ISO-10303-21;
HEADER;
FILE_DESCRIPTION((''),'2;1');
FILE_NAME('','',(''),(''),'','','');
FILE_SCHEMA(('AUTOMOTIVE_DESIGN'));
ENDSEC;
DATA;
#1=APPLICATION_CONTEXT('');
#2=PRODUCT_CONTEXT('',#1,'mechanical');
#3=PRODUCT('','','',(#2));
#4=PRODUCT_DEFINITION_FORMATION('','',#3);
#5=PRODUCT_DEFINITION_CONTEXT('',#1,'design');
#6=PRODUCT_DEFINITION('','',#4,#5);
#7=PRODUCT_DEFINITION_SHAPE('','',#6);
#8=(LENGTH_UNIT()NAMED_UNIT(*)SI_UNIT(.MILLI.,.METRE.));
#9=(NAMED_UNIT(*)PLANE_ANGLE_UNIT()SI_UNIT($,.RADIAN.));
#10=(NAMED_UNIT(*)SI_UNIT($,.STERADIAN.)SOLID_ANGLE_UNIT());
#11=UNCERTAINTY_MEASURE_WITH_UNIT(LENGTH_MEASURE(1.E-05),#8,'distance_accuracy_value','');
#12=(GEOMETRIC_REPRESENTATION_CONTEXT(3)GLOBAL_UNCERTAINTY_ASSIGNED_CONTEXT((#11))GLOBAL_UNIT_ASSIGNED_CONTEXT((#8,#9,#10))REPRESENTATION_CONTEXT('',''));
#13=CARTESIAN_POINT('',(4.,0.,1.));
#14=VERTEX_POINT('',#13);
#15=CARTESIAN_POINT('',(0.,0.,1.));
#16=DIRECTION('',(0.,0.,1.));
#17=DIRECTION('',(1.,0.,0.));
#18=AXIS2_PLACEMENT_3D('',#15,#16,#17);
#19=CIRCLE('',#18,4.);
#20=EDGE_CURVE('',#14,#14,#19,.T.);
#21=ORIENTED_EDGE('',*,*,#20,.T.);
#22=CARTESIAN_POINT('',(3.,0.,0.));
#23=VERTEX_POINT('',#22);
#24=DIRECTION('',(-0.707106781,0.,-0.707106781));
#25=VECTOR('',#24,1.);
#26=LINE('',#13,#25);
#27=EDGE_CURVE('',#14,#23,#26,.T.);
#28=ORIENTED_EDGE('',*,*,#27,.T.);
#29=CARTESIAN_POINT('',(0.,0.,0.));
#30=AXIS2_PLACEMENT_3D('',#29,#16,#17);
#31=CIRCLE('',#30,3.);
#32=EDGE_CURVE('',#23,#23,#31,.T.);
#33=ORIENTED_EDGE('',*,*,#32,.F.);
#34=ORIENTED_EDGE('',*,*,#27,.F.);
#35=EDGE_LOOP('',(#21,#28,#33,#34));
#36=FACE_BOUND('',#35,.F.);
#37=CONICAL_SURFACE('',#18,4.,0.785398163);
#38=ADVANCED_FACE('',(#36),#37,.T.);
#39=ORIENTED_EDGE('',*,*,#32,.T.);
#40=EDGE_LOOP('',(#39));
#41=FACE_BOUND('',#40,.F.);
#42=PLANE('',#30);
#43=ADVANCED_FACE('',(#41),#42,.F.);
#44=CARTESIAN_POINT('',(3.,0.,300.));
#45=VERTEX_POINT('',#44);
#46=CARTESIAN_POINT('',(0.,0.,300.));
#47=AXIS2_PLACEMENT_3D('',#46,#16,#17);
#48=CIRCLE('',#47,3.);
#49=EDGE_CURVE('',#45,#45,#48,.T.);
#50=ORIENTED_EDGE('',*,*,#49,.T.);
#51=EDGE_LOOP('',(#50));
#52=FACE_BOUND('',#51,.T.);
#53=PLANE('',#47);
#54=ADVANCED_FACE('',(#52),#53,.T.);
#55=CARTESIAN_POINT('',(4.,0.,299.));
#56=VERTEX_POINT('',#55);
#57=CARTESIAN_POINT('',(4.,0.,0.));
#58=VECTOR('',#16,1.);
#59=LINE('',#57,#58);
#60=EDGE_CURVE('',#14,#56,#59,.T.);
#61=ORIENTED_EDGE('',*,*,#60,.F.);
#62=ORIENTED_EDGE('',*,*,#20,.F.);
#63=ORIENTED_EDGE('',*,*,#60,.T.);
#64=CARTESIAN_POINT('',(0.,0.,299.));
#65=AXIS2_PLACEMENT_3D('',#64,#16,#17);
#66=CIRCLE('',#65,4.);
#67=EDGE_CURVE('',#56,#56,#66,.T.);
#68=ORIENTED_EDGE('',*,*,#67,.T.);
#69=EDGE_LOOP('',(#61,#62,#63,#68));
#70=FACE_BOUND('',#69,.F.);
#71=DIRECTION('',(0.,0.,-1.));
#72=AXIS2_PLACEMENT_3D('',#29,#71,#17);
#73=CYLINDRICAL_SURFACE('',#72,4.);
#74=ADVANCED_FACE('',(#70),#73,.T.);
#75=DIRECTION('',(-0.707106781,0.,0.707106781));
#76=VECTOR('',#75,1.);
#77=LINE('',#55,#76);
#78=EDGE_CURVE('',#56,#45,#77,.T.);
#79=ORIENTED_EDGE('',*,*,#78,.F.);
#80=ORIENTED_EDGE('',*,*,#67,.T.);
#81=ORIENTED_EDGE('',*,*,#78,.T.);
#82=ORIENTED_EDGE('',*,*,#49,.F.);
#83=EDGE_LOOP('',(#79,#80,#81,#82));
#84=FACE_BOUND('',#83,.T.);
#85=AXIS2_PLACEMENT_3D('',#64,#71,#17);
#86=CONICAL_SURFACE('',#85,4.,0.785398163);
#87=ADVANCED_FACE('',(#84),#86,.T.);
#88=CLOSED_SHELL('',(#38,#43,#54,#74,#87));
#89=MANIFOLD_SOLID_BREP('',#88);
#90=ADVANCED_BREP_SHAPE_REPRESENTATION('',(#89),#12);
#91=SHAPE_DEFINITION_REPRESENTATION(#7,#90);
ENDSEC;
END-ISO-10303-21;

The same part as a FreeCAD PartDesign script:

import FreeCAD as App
import Part
import Sketcher
from FreeCAD import Vector


def edges_at(feature, points):
    """Names of the edges that pass closest to the given points."""
    edges = feature.Shape.Edges
    near = lambda p: min(range(len(edges)), key=lambda i: edges[i].distToShape(Part.Vertex(*p))[0])
    return sorted({f"Edge{near(p) + 1}" for p in points})

doc = App.newDocument("Part")
body = doc.addObject("PartDesign::Body", "Body")

sketch1 = body.newObject("Sketcher::SketchObject", "Sketch")
sketch1.AttachmentSupport = (doc.getObject("XY_Plane"), [""])
sketch1.MapMode = "FlatFace"
sketch1.addGeometry(Part.Circle(Vector(0, 0, 0), Vector(0, 0, 1), 4), False)
sketch1.addConstraint([
    Sketcher.Constraint("Coincident", 0, 3, -1, 1),
    Sketcher.Constraint("Diameter", 0, 8.0),
])
pad1 = body.newObject("PartDesign::Pad", "Pad")
pad1.Profile = sketch1
pad1.Length = 300
doc.recompute()

chamfer = body.newObject("PartDesign::Chamfer", "Chamfer")
chamfer.Base = (pad1, edges_at(pad1, [(-4, 0, 300), (-4, 0, 0)]))
chamfer.Size = 1

doc.recompute()
